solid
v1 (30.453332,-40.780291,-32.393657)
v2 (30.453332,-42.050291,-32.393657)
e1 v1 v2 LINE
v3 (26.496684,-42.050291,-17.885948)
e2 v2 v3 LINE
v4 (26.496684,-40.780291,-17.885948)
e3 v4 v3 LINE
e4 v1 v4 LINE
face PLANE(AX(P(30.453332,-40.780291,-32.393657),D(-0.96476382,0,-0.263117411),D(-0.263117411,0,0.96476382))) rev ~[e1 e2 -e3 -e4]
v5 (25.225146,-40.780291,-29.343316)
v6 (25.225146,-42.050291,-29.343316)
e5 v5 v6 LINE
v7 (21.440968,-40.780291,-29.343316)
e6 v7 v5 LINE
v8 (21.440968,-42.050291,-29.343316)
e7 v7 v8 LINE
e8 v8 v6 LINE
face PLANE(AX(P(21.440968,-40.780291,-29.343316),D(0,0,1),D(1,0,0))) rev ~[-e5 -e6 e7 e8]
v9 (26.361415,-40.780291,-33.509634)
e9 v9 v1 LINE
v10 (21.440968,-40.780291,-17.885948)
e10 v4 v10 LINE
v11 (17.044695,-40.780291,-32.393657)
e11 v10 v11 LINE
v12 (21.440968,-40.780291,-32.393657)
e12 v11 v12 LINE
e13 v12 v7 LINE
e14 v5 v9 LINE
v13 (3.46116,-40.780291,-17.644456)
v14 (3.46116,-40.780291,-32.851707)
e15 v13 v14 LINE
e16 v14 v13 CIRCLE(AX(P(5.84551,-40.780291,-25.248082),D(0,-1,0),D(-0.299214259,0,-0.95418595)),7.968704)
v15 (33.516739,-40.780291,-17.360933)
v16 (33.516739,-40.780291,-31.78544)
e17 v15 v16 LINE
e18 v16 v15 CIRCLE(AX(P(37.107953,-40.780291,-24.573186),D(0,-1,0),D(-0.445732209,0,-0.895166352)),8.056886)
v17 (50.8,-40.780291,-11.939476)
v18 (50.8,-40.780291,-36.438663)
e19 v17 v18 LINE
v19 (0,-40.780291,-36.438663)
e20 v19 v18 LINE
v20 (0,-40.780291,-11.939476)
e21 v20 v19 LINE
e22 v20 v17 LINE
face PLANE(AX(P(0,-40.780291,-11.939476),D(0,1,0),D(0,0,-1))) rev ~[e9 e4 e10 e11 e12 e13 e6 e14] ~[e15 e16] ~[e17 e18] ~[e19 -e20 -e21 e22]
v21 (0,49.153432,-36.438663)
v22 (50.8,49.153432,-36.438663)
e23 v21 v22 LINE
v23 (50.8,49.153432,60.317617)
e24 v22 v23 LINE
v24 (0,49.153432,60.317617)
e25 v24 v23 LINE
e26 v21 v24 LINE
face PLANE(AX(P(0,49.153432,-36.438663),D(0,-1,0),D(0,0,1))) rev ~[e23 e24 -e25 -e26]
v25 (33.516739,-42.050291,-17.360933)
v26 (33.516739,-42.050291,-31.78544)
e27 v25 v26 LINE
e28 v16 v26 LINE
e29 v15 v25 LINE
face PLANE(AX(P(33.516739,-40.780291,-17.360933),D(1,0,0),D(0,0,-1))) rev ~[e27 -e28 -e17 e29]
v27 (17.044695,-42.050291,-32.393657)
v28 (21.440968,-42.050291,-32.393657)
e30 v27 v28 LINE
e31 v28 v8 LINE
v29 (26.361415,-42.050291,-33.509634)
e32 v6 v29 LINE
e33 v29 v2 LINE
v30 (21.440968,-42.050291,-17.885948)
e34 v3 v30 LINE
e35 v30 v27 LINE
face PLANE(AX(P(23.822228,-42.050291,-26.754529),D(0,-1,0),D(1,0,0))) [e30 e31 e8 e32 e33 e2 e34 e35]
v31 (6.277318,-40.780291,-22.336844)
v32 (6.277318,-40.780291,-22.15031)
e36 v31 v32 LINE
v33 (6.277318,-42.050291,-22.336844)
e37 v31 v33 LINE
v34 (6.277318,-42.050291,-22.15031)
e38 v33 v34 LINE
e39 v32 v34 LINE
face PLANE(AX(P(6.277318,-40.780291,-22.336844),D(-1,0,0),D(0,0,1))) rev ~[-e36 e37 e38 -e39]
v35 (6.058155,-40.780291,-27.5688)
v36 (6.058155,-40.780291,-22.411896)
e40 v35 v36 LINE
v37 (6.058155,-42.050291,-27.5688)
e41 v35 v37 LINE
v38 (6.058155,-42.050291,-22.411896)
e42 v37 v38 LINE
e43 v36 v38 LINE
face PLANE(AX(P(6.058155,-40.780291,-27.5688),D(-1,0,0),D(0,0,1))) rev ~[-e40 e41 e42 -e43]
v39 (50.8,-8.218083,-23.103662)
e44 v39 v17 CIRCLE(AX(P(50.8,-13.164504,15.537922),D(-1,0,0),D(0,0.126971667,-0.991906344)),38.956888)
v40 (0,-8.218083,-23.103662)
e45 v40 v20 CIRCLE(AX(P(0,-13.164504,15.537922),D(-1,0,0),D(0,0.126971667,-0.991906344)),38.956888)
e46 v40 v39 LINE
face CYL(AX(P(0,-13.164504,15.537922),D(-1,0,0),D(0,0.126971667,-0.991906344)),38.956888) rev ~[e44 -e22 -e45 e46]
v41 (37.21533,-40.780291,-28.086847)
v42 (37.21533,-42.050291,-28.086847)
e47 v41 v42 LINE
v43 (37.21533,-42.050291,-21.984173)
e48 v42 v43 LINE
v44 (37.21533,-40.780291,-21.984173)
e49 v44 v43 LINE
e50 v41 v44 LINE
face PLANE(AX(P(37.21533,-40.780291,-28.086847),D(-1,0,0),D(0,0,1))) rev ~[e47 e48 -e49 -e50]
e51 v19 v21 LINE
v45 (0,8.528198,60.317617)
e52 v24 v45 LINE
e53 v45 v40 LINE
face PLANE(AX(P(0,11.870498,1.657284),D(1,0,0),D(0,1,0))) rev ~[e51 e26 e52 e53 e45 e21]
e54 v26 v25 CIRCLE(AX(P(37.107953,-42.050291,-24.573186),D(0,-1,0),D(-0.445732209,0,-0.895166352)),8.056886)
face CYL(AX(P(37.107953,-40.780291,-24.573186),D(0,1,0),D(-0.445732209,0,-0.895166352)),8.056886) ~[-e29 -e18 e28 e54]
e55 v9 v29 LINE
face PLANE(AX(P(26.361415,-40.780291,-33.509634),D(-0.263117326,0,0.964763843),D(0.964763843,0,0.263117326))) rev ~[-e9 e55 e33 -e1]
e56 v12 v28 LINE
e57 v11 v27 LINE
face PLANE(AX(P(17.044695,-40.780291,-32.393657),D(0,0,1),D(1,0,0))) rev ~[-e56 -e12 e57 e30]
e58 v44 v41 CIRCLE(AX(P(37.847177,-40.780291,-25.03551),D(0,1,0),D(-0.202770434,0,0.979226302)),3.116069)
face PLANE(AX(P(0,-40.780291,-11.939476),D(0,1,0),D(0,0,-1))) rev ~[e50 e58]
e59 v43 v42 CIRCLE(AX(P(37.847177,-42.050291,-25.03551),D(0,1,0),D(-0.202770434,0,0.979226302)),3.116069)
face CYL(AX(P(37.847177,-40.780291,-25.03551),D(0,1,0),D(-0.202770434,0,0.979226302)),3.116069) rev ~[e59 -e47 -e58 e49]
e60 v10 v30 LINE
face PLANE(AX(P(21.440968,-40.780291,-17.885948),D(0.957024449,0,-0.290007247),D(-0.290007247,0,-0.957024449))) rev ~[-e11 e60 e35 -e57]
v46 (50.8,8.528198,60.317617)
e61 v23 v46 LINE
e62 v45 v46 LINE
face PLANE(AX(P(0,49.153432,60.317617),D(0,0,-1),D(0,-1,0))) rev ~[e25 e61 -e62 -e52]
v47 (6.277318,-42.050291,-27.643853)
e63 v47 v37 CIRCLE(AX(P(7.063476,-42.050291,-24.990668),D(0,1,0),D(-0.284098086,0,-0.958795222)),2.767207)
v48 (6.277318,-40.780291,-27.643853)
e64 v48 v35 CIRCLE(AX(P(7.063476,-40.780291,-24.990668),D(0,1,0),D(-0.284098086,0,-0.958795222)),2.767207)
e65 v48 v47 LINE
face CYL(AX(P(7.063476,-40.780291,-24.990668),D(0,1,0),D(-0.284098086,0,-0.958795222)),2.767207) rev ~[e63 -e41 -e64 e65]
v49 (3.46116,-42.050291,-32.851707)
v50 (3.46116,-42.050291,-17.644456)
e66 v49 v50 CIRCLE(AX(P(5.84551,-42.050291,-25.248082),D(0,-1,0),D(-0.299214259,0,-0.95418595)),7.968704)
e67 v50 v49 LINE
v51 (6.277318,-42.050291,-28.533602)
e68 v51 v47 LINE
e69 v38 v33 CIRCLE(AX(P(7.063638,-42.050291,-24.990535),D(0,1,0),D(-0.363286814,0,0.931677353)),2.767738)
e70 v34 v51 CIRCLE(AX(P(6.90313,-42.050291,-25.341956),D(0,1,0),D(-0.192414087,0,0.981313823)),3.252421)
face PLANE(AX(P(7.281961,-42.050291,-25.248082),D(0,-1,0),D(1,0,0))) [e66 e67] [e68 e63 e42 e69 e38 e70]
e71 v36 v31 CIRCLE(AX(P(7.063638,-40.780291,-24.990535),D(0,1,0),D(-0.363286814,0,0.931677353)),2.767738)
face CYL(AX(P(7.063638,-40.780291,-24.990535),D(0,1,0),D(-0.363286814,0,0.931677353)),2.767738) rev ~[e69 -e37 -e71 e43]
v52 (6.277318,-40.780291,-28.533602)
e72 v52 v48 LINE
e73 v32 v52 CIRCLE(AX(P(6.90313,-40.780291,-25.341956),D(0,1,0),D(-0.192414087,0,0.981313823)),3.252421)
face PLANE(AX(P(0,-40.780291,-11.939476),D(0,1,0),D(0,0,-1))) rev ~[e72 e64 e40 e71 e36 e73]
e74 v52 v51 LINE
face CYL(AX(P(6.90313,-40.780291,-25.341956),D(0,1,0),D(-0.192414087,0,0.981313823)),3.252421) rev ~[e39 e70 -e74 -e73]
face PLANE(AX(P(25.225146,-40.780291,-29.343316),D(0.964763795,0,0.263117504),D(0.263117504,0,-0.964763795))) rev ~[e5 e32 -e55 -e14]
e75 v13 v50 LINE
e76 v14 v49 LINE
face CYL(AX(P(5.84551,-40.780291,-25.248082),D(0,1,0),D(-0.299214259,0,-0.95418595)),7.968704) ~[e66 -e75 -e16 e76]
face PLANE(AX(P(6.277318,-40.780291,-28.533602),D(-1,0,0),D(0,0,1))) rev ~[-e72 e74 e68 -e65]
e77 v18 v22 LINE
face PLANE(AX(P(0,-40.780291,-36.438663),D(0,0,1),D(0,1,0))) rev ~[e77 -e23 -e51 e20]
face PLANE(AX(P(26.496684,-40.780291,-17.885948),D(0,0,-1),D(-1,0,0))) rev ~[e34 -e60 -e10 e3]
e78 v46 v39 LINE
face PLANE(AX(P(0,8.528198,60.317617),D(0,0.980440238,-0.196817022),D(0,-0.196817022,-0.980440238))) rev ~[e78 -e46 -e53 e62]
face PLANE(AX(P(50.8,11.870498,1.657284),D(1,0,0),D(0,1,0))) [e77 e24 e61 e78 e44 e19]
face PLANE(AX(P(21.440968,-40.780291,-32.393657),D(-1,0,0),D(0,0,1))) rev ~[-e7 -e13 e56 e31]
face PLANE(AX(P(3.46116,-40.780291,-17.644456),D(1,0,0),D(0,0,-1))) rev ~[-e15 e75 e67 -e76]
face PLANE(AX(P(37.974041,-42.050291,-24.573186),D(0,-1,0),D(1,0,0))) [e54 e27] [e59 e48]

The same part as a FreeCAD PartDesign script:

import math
import FreeCAD as App
import Part
import Sketcher
Q = App.Units.Quantity

doc = App.newDocument("Part")
body = doc.addObject("PartDesign::Body", "Body")

# Sketch on YZ plane
sketch1 = body.newObject("Sketcher::SketchObject", "Sketch")
sketch1.AttachmentSupport = (doc.getObject("YZ_Plane"), [""])
sketch1.MapMode = "FlatFace"
sketch1.addGeometry([
    Part.LineSegment(App.Vector(9, 60, 0), App.Vector(-8, -23, 0)),  # 0
    Part.ArcOfCircle(Part.Circle(App.Vector(-13, 16, 0), App.Vector(0, 0, 1), 39), math.radians(-135), math.radians(-83)),  # 1
    Part.LineSegment(App.Vector(-41, -12, 0), App.Vector(-41, -36, 0)),  # 2
    Part.LineSegment(App.Vector(-41, -36, 0), App.Vector(49, -36, 0)),  # 3
    Part.LineSegment(App.Vector(49, -36, 0), App.Vector(49, 60, 0)),  # 4
    Part.LineSegment(App.Vector(49, 60, 0), App.Vector(9, 60, 0)),  # 5
], False)
sketch1.addConstraint([
    Sketcher.Constraint("Coincident", 0, 2, 1, 2),
    Sketcher.Constraint("Coincident", 1, 1, 2, 1),
    Sketcher.Constraint("Coincident", 2, 2, 3, 1),
    Sketcher.Constraint("Coincident", 3, 2, 4, 1),
    Sketcher.Constraint("Coincident", 4, 2, 5, 1),
    Sketcher.Constraint("Coincident", 5, 2, 0, 1),
    Sketcher.Constraint("Vertical", 2),
    Sketcher.Constraint("Horizontal", 3),
    Sketcher.Constraint("Vertical", 4),
    Sketcher.Constraint("Horizontal", 5),
    Sketcher.Constraint("DistanceY", 2, 2, 0, 2, Q("0.525 in")),
    Sketcher.Constraint("Radius", 1, Q("38.956888 mm")),
    Sketcher.Constraint("DistanceY", 4, 1, 4, 2, Q("96.75628 mm")),
    Sketcher.Constraint("DistanceY", 1, 1, 1, 3, Q("27.477398 mm")),
    Sketcher.Constraint("DistanceX", 1, 3, 5, 2, Q("21.692702 mm")),
    Sketcher.Constraint("Distance", 0, Q("85.085532 mm")),
    Sketcher.Constraint("DistanceX", 3, 1, 3, 2, Q("89.933723 mm")),
    Sketcher.Constraint("DistanceY", 0, 2, -1, 1, Q("23.103662 mm")),
    Sketcher.Constraint("DistanceX", 1, 1, -1, 1, Q("40.780291 mm")),
])
pad1 = body.newObject("PartDesign::Pad", "Pad")
pad1.Profile = sketch1
pad1.Length = Q("2 in")

# Sketch on XZ plane
sketch2 = body.newObject("Sketcher::SketchObject", "Sketch001")
sketch2.AttachmentSupport = (doc.getObject("XZ_Plane"), [""])
sketch2.MapMode = "FlatFace"
sketch2.AttachmentOffset = App.Placement(App.Vector(0, 0, 40.780291), App.Rotation())
sketch2.addGeometry([
    Part.ArcOfCircle(Part.Circle(App.Vector(37.1, -24.6, 0), App.Vector(0, 0, 1), 8.1), math.radians(-116), math.radians(116)),
    Part.LineSegment(App.Vector(33.5, -17.4, 0), App.Vector(33.5, -31.8, 0)),
    Part.ArcOfCircle(Part.Circle(App.Vector(37.8, -25, 0), App.Vector(0, 0, 1), 3.1), math.radians(-102), math.radians(102)),
    Part.LineSegment(App.Vector(37.2, -28.1, 0), App.Vector(37.2, -22, 0)),
], False)
sketch2.addConstraint([
    Sketcher.Constraint("Coincident", 0, 1, 1, 2),
    Sketcher.Constraint("Coincident", 1, 1, 0, 2),
    Sketcher.Constraint("Coincident", 2, 1, 3, 1),
    Sketcher.Constraint("Coincident", 3, 2, 2, 2),
    Sketcher.Constraint("Vertical", 1),
    Sketcher.Constraint("Vertical", 3),
    Sketcher.Constraint("Radius", 2, Q("3.116069 mm")),
    Sketcher.Constraint("Radius", 0, Q("8.056886 mm")),
    Sketcher.Constraint("DistanceY", 1, 2, 1, 1, Q("14.424507 mm")),
    Sketcher.Constraint("DistanceY", 3, 1, 3, 2, Q("6.102674 mm")),
    Sketcher.Constraint("DistanceY", 2, 3, -1, 1, Q("25.03551 mm")),
    Sketcher.Constraint("DistanceX", -1, 1, 0, 1, Q("33.516739 mm")),
    Sketcher.Constraint("DistanceY", 0, 1, -1, 1, Q("31.78544 mm")),
    Sketcher.Constraint("DistanceX", -1, 1, 2, 1, Q("37.21533 mm")),
])
pad2 = body.newObject("PartDesign::Pad", "Pad001")
pad2.Profile = sketch2
pad2.Length = Q("0.05 in")

# Sketch on XZ plane
sketch3 = body.newObject("Sketcher::SketchObject", "Sketch002")
sketch3.AttachmentSupport = (doc.getObject("XZ_Plane"), [""])
sketch3.MapMode = "FlatFace"
sketch3.AttachmentOffset = App.Placement(App.Vector(0, 0, 40.780291), App.Rotation())
sketch3.addGeometry([
    Part.LineSegment(App.Vector(21.4, -17.9, 0), App.Vector(17, -32.4, 0)),  # 0
    Part.LineSegment(App.Vector(17, -32.4, 0), App.Vector(21.4, -32.4, 0)),  # 1
    Part.LineSegment(App.Vector(21.4, -32.4, 0), App.Vector(21.4, -29.3, 0)),  # 2
    Part.LineSegment(App.Vector(21.4, -29.3, 0), App.Vector(25.2, -29.3, 0)),  # 3
    Part.LineSegment(App.Vector(25.2, -29.3, 0), App.Vector(26.4, -33.5, 0)),  # 4
    Part.LineSegment(App.Vector(26.4, -33.5, 0), App.Vector(30.5, -32.4, 0)),  # 5
    Part.LineSegment(App.Vector(30.5, -32.4, 0), App.Vector(26.5, -17.9, 0)),  # 6
    Part.LineSegment(App.Vector(26.5, -17.9, 0), App.Vector(21.4, -17.9, 0)),  # 7
], False)
sketch3.addConstraint([
    Sketcher.Constraint("Coincident", 0, 2, 1, 1),
    Sketcher.Constraint("Coincident", 1, 2, 2, 1),
    Sketcher.Constraint("Coincident", 2, 2, 3, 1),
    Sketcher.Constraint("Coincident", 3, 2, 4, 1),
    Sketcher.Constraint("Coincident", 4, 2, 5, 1),
    Sketcher.Constraint("Coincident", 5, 2, 6, 1),
    Sketcher.Constraint("Coincident", 6, 2, 7, 1),
    Sketcher.Constraint("Coincident", 7, 2, 0, 1),
    Sketcher.Constraint("Horizontal", 1),
    Sketcher.Constraint("Vertical", 2),
    Sketcher.Constraint("Horizontal", 3),
    Sketcher.Constraint("Horizontal", 7),
    Sketcher.Constraint("Perpendicular", 4, 5),
    Sketcher.Constraint("Perpendicular", 5, 6),
    Sketcher.Constraint("Horizontal", 1, 2, 5, 2),
    Sketcher.Constraint("Vertical", 2, 2, 7, 2),
    Sketcher.Constraint("DistanceX", 0, 2, 4, 2, Q("0.3668 in")),
    Sketcher.Constraint("DistanceY", 2, 1, 2, 2, Q("3.050341 mm")),
    Sketcher.Constraint("DistanceX", 1, 1, 1, 2, Q("4.396273 mm")),
    Sketcher.Constraint("DistanceX", 3, 1, 3, 2, Q("3.784178 mm")),
    Sketcher.Constraint("DistanceX", 7, 2, 7, 1, Q("5.055716 mm")),
    Sketcher.Constraint("DistanceX", -1, 1, 1, 2, Q("21.440968 mm")),
    Sketcher.Constraint("DistanceX", -1, 1, 5, 2, Q("30.453332 mm")),
    Sketcher.Constraint("DistanceY", 0, 2, -1, 1, Q("32.393657 mm")),
])
pad3 = body.newObject("PartDesign::Pad", "Pad002")
pad3.Profile = sketch3
pad3.Length = Q("0.05 in")

# Sketch on XZ plane
sketch4 = body.newObject("Sketcher::SketchObject", "Sketch003")
sketch4.AttachmentSupport = (doc.getObject("XZ_Plane"), [""])
sketch4.MapMode = "FlatFace"
sketch4.AttachmentOffset = App.Placement(App.Vector(0, 0, 40.780291), App.Rotation())
sketch4.addGeometry([
    Part.ArcOfCircle(Part.Circle(App.Vector(5.85, -25.25, 0), App.Vector(0, 0, 1), 7.97), math.radians(-107), math.radians(107)),  # 0
    Part.LineSegment(App.Vector(3.46, -17.64, 0), App.Vector(3.46, -32.85, 0)),  # 1
    Part.ArcOfCircle(Part.Circle(App.Vector(7.06, -24.99, 0), App.Vector(0, 0, 1), 2.77), math.radians(106.51), math.radians(111.3)),  # 2
    Part.LineSegment(App.Vector(6.28, -22.34, 0), App.Vector(6.28, -22.15, 0)),  # 3
    Part.ArcOfCircle(Part.Circle(App.Vector(6.9, -25.34, 0), App.Vector(0, 0, 1), 3.25), math.radians(-101), math.radians(101)),  # 4
    Part.LineSegment(App.Vector(6.28, -28.53, 0), App.Vector(6.28, -27.64, 0)),  # 5
    Part.ArcOfCircle(Part.Circle(App.Vector(7.06, -24.99, 0), App.Vector(0, 0, 1), 2.77), math.radians(-111.3), math.radians(-106.5)),  # 6
    Part.LineSegment(App.Vector(6.06, -27.57, 0), App.Vector(6.06, -22.41, 0)),  # 7
], False)
sketch4.addConstraint([
    Sketcher.Constraint("Coincident", 0, 1, 1, 2),
    Sketcher.Constraint("Coincident", 1, 1, 0, 2),
    Sketcher.Constraint("Coincident", 2, 1, 3, 1),
    Sketcher.Constraint("Coincident", 3, 2, 4, 2),
    Sketcher.Constraint("Coincident", 4, 1, 5, 1),
    Sketcher.Constraint("Coincident", 5, 2, 6, 2),
    Sketcher.Constraint("Coincident", 6, 1, 7, 1),
    Sketcher.Constraint("Coincident", 7, 2, 2, 2),
    Sketcher.Constraint("Vertical", 1),
    Sketcher.Constraint("Vertical", 3),
    Sketcher.Constraint("Vertical", 5),
    Sketcher.Constraint("Vertical", 7),
    Sketcher.Constraint("Vertical", 3, 2, 4, 1),
    Sketcher.Constraint("Radius", 2, Q("2.767738 mm")),
    Sketcher.Constraint("Radius", 4, Q("3.252421 mm")),
    Sketcher.Constraint("Radius", 0, Q("7.968704 mm")),
    Sketcher.Constraint("Radius", 6, Q("2.767207 mm")),
    Sketcher.Constraint("DistanceY", 1, 2, 1, 1, Q("15.207251 mm")),
    Sketcher.Constraint("DistanceY", 5, 1, 5, 2, Q("0.889749 mm")),
    Sketcher.Constraint("DistanceY", 6, 1, -1, 1, Q("27.5688 mm")),
    Sketcher.Constraint("DistanceY", 4, 3, 1, 1, Q("7.6975 mm")),
    Sketcher.Constraint("DistanceY", 3, 1, 3, 2, Q("0.186534 mm")),
    Sketcher.Constraint("DistanceY", 7, 1, 7, 2, Q("5.156904 mm")),
    Sketcher.Constraint("DistanceX", -1, 1, 0, 3, Q("5.84551 mm")),
    Sketcher.Constraint("DistanceY", 0, 3, -1, 1, Q("25.248082 mm")),
    Sketcher.Constraint("DistanceX", -1, 1, 4, 3, Q("6.90313 mm")),
    Sketcher.Constraint("DistanceY", 6, 3, -1, 1, Q("24.990668 mm")),
    Sketcher.Constraint("DistanceX", -1, 1, 3, 2, Q("6.277318 mm")),
])
pad4 = body.newObject("PartDesign::Pad", "Pad003")
pad4.Profile = sketch4
pad4.Length = Q("0.05 in")

doc.recompute()
